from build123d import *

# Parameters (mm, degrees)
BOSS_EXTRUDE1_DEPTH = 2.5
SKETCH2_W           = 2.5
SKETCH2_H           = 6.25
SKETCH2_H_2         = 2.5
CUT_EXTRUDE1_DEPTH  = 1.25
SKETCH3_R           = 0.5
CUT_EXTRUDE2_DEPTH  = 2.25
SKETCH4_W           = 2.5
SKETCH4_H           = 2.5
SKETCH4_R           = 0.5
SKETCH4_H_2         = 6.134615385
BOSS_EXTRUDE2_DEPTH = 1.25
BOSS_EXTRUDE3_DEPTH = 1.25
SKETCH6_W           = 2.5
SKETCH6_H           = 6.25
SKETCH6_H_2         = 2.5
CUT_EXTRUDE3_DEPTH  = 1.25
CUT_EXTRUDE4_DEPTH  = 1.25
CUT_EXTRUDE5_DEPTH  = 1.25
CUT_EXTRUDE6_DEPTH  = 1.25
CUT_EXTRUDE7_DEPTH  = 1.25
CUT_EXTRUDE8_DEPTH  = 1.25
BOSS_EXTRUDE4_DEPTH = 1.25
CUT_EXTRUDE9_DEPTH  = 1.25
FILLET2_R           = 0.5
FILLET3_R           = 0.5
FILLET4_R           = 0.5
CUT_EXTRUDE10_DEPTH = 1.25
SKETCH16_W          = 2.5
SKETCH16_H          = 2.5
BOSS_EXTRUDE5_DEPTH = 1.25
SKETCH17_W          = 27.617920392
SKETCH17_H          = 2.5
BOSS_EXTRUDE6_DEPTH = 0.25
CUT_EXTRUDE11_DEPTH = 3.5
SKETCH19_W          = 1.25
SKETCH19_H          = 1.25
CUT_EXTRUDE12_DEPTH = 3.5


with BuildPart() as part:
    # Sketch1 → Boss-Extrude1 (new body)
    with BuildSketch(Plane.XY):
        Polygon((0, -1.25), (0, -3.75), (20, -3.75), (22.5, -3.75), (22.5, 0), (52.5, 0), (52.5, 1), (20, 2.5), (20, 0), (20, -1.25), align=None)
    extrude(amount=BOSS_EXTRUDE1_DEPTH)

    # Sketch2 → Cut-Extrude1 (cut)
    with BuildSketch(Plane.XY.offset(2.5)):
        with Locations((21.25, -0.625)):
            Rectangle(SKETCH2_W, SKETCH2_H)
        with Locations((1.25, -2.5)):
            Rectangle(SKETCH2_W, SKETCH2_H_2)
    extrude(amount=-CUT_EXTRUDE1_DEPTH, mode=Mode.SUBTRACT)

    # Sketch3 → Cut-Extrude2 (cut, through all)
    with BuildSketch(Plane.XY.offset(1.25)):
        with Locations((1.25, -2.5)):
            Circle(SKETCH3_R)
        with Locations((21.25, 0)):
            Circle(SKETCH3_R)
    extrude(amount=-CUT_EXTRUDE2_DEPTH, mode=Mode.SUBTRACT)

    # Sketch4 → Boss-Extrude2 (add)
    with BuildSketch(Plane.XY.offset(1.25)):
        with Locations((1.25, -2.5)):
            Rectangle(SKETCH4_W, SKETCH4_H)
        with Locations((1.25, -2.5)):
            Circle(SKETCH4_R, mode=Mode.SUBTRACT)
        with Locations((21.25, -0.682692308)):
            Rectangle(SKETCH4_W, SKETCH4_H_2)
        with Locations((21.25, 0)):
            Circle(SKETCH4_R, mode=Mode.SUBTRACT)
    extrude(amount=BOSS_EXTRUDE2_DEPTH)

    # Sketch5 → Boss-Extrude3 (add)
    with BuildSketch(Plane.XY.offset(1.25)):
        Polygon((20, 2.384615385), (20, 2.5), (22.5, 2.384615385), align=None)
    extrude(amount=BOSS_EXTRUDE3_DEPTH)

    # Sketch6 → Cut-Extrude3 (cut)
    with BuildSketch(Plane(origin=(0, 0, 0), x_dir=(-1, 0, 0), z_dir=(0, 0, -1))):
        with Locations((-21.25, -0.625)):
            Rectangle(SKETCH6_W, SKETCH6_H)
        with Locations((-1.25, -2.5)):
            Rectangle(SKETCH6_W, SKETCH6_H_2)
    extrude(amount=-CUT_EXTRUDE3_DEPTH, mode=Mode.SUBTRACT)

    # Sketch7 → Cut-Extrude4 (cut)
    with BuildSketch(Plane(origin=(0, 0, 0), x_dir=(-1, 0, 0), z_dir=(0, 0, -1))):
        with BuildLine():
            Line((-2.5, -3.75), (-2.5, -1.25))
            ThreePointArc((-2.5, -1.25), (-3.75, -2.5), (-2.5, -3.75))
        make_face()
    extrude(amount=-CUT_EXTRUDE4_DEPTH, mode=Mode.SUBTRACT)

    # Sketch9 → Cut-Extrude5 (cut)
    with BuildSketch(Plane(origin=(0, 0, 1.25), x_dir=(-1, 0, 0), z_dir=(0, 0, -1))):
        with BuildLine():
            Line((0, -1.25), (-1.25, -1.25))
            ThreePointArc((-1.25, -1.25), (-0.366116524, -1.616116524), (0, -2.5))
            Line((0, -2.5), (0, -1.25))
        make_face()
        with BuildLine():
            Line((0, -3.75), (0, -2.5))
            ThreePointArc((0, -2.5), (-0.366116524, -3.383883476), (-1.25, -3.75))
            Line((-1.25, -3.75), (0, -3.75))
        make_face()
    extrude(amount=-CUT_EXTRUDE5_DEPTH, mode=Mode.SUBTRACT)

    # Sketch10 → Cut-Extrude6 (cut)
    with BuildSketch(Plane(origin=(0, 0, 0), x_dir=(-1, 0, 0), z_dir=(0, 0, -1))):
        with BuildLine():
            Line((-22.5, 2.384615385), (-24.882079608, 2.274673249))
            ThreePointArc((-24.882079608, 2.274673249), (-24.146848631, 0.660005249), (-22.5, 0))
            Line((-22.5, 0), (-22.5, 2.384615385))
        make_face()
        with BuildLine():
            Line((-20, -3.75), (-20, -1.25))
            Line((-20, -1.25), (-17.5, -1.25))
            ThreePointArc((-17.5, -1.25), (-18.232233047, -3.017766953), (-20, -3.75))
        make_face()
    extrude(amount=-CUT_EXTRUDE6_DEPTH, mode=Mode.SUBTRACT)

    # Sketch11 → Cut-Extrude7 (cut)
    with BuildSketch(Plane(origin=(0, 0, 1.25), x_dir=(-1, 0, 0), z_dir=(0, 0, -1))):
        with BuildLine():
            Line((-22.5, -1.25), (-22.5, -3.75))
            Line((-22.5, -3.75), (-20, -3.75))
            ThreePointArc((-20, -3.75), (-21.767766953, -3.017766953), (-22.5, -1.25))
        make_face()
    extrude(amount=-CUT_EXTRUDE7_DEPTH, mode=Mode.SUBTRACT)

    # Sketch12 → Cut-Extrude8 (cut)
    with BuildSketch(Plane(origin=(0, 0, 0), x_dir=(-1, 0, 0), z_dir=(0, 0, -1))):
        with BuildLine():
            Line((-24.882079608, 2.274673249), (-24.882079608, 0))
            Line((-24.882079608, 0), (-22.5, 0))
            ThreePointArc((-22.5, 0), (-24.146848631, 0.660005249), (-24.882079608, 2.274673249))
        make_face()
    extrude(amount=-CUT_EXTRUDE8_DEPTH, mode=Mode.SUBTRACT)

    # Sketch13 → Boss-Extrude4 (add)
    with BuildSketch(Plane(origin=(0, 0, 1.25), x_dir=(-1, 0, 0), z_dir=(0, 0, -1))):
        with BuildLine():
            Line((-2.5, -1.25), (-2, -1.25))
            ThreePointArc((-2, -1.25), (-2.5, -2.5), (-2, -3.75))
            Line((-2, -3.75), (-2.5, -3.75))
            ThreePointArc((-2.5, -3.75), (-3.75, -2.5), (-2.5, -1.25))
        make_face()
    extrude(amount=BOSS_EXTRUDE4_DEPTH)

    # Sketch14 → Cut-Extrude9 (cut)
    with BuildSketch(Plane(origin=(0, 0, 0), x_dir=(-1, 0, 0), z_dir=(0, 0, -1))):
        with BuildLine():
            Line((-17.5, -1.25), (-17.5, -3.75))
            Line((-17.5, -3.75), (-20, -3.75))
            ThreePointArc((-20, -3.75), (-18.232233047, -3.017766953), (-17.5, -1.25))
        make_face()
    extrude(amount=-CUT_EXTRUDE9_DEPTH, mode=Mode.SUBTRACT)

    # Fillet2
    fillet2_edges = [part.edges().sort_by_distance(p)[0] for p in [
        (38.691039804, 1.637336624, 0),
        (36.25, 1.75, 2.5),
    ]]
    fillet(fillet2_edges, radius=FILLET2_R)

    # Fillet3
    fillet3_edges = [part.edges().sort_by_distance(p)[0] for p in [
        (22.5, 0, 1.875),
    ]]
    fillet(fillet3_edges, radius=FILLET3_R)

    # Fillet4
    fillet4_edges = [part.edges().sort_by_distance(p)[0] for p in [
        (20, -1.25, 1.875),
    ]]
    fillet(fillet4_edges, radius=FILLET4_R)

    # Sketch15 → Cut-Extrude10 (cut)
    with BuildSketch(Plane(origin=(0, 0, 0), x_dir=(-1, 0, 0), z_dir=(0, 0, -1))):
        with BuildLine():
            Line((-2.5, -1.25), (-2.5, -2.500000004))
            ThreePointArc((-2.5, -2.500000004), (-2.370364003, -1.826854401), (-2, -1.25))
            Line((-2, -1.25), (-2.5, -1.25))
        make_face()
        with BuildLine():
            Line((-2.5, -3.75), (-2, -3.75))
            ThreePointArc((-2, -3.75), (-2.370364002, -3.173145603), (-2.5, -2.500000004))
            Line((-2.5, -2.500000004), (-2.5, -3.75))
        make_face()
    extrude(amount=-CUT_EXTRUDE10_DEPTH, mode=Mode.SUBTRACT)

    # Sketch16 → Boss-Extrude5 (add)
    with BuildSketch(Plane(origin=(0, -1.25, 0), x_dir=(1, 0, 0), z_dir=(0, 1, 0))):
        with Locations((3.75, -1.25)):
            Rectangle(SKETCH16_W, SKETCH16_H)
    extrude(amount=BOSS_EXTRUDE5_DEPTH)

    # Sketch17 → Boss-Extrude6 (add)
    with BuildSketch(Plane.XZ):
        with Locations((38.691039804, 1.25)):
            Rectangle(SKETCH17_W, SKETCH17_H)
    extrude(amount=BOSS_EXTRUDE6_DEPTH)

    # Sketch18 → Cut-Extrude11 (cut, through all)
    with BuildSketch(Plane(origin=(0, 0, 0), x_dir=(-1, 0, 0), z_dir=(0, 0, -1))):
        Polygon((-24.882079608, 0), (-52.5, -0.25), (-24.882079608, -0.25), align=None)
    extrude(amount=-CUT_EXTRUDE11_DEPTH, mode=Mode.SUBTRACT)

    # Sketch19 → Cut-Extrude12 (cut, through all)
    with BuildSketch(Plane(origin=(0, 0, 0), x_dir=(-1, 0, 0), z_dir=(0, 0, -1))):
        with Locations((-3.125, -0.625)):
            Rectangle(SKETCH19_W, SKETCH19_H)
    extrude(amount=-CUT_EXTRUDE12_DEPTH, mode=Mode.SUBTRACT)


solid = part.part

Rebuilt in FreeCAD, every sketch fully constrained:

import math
import FreeCAD as App
import Part
import Sketcher
from FreeCAD import Vector


def edges_at(feature, points):
    """Names of the edges that pass closest to the given points."""
    edges = feature.Shape.Edges
    near = lambda p: min(range(len(edges)), key=lambda i: edges[i].distToShape(Part.Vertex(*p))[0])
    return sorted({f"Edge{near(p) + 1}" for p in points})


def add_polygon(sketch, points):
    """Adds a closed chain of lines whose ends are joined by coincident constraints."""
    first, n = sketch.GeometryCount, len(points)
    for a, b in zip(points, points[1:] + points[:1]):
        sketch.addGeometry(Part.LineSegment(App.Vector(*a, 0), App.Vector(*b, 0)), False)
    for i in range(n):
        sketch.addConstraint(Sketcher.Constraint("Coincident", first + i, 2, first + (i + 1) % n, 1))

doc = App.newDocument("Part")
body = doc.addObject("PartDesign::Body", "Body")

sketch1 = body.newObject("Sketcher::SketchObject", "Sketch")
sketch1.AttachmentSupport = (doc.getObject("XY_Plane"), [""])
sketch1.MapMode = "FlatFace"
add_polygon(sketch1, [(0, -1.2), (0, -3.8), (22.5, -3.8), (22.5, 0), (52.5, 0), (52.5, 1), (20, 2.5), (20, -1.2)])
sketch1.addConstraint([
    Sketcher.Constraint("Vertical", 0),
    Sketcher.Constraint("Horizontal", 1),
    Sketcher.Constraint("Vertical", 2),
    Sketcher.Constraint("Horizontal", 3),
    Sketcher.Constraint("Vertical", 4),
    Sketcher.Constraint("Vertical", 6),
    Sketcher.Constraint("Horizontal", 7),
    Sketcher.Constraint("PointOnObject", 0, 2, -2),
    Sketcher.Constraint("PointOnObject", 2, 2, -1),
    Sketcher.Constraint("Equal", 2, 6),
    Sketcher.Constraint("DistanceX", 3, 1, 3, 2, 30.0),
    Sketcher.Constraint("DistanceX", 7, 2, 7, 1, 20.0),
    Sketcher.Constraint("DistanceY", 4, 1, 4, 2, 1.0),
    Sketcher.Constraint("DistanceX", 1, 1, 1, 2, 22.5),
    Sketcher.Constraint("DistanceY", 0, 2, 0, 1, 2.5),
    Sketcher.Constraint("DistanceY", 2, 1, 2, 2, 3.75),
])
pad1 = body.newObject("PartDesign::Pad", "Pad")
pad1.Profile = sketch1
pad1.Length = 2.5

sketch2 = body.newObject("Sketcher::SketchObject", "Sketch001")
sketch2.AttachmentSupport = (doc.getObject("XY_Plane"), [""])
sketch2.MapMode = "FlatFace"
sketch2.AttachmentOffset = App.Placement(Vector(0, 0, 2.5), App.Rotation())
add_polygon(sketch2, [(20, 2.5), (20, -3.8), (22.5, -3.8), (22.5, 2.5)])
add_polygon(sketch2, [(0, -1.2), (0, -3.8), (2.5, -3.8), (2.5, -1.2)])
sketch2.addConstraint([
    Sketcher.Constraint("Vertical", 0),
    Sketcher.Constraint("Horizontal", 1),
    Sketcher.Constraint("Vertical", 2),
    Sketcher.Constraint("Horizontal", 3),
    Sketcher.Constraint("Vertical", 4),
    Sketcher.Constraint("Horizontal", 5),
    Sketcher.Constraint("Vertical", 6),
    Sketcher.Constraint("Horizontal", 7),
    Sketcher.Constraint("PointOnObject", 4, 2, -2),
    Sketcher.Constraint("Horizontal", 1, 2, 4, 2),
    Sketcher.Constraint("Equal", 3, 5),
    Sketcher.Constraint("Equal", 7, 4),
    Sketcher.Constraint("DistanceX", 1, 1, 1, 2, 2.5),
    Sketcher.Constraint("DistanceX", -1, 1, 0, 2, 20.0),
    Sketcher.Constraint("DistanceY", 0, 2, 0, 1, 6.25),
    Sketcher.Constraint("DistanceY", -1, 1, 2, 2, 2.5),
])
pocket1 = body.newObject("PartDesign::Pocket", "Pocket")
pocket1.Profile = sketch2
pocket1.Length = 1.25

sketch3 = body.newObject("Sketcher::SketchObject", "Sketch002")
sketch3.AttachmentSupport = (doc.getObject("XY_Plane"), [""])
sketch3.MapMode = "FlatFace"
sketch3.AttachmentOffset = App.Placement(Vector(0, 0, 1.25), App.Rotation())
sketch3.addGeometry([
    Part.Circle(Vector(1.2, -2.5, 0), Vector(0, 0, 1), 0.5),
    Part.Circle(Vector(21.2, 0, 0), Vector(0, 0, 1), 0.5),
], False)
sketch3.addConstraint([
    Sketcher.Constraint("Equal", 0, 1),
    Sketcher.Constraint("PointOnObject", 1, 3, -1),
    Sketcher.Constraint("Diameter", 0, 1.0),
    Sketcher.Constraint("DistanceX", 0, 3, 1, 3, 20.0),
    Sketcher.Constraint("DistanceY", 0, 3, -1, 1, 2.5),
    Sketcher.Constraint("DistanceX", -1, 1, 0, 3, 1.25),
])
pocket2 = body.newObject("PartDesign::Pocket", "Pocket001")
pocket2.Profile = sketch3
pocket2.Type = "ThroughAll"

sketch4 = body.newObject("Sketcher::SketchObject", "Sketch003")
sketch4.AttachmentSupport = (doc.getObject("XY_Plane"), [""])
sketch4.MapMode = "FlatFace"
sketch4.AttachmentOffset = App.Placement(Vector(0, 0, 1.25), App.Rotation())
add_polygon(sketch4, [(0, -1.2), (0, -3.8), (2.5, -3.8), (2.5, -1.2)])
sketch4.addGeometry(Part.Circle(Vector(1.2, -2.5, 0), Vector(0, 0, 1), 0.5), False)
add_polygon(sketch4, [(20, 2.4), (20, -3.8), (22.5, -3.8), (22.5, 2.4)])
sketch4.addGeometry(Part.Circle(Vector(21.2, 0, 0), Vector(0, 0, 1), 0.5), False)
sketch4.addConstraint([
    Sketcher.Constraint("Vertical", 0),
    Sketcher.Constraint("Horizontal", 1),
    Sketcher.Constraint("Vertical", 2),
    Sketcher.Constraint("Horizontal", 3),
    Sketcher.Constraint("Vertical", 5),
    Sketcher.Constraint("Horizontal", 6),
    Sketcher.Constraint("Vertical", 7),
    Sketcher.Constraint("Horizontal", 8),
    Sketcher.Constraint("Equal", 4, 9),
    Sketcher.Constraint("PointOnObject", 9, 3, -1),
    Sketcher.Constraint("PointOnObject", 0, 2, -2),
    Sketcher.Constraint("Horizontal", 1, 2, 5, 2),
    Sketcher.Constraint("Equal", 3, 6),
    Sketcher.Constraint("Equal", 8, 0),
    Sketcher.Constraint("Diameter", 4, 1.0),
    Sketcher.Constraint("DistanceX", 1, 1, 1, 2, 2.5),
    Sketcher.Constraint("DistanceX", -1, 1, 5, 2, 20.0),
    Sketcher.Constraint("DistanceX", 4, 3, 9, 3, 20.0),
    Sketcher.Constraint("DistanceY", 4, 3, -1, 1, 2.5),
    Sketcher.Constraint("DistanceX", -1, 1, 4, 3, 1.25),
    Sketcher.Constraint("DistanceY", 0, 2, -1, 1, 3.75),
    Sketcher.Constraint("DistanceY", 5, 2, 5, 1, 6.134615),
])
pad2 = body.newObject("PartDesign::Pad", "Pad001")
pad2.Profile = sketch4
pad2.Length = 1.25

sketch5 = body.newObject("Sketcher::SketchObject", "Sketch004")
sketch5.AttachmentSupport = (doc.getObject("XY_Plane"), [""])
sketch5.MapMode = "FlatFace"
sketch5.AttachmentOffset = App.Placement(Vector(0, 0, 1.25), App.Rotation())
add_polygon(sketch5, [(20, 2.5), (20, 2.38), (22.5, 2.38)])
sketch5.addConstraint([
    Sketcher.Constraint("Vertical", 0),
    Sketcher.Constraint("Horizontal", 1),
    Sketcher.Constraint("DistanceX", 1, 1, 1, 2, 2.5),
    Sketcher.Constraint("DistanceX", -1, 1, 0, 2, 20.0),
    Sketcher.Constraint("DistanceY", -1, 1, 2, 2, 2.5),
    Sketcher.Constraint("Distance", 2, 2.502661),
])
pad3 = body.newObject("PartDesign::Pad", "Pad002")
pad3.Profile = sketch5
pad3.Length = 1.25

sketch6 = body.newObject("Sketcher::SketchObject", "Sketch005")
sketch6.AttachmentSupport = (doc.getObject("XY_Plane"), [""])
sketch6.MapMode = "FlatFace"
add_polygon(sketch6, [(22.5, 2.5), (22.5, -3.8), (20, -3.8), (20, 2.5)])
add_polygon(sketch6, [(2.5, -1.2), (2.5, -3.8), (0, -3.8), (0, -1.2)])
sketch6.addConstraint([
    Sketcher.Constraint("Vertical", 0),
    Sketcher.Constraint("Horizontal", 1),
    Sketcher.Constraint("Vertical", 2),
    Sketcher.Constraint("Horizontal", 3),
    Sketcher.Constraint("Vertical", 4),
    Sketcher.Constraint("Horizontal", 5),
    Sketcher.Constraint("Vertical", 6),
    Sketcher.Constraint("Horizontal", 7),
    Sketcher.Constraint("PointOnObject", 5, 2, -2),
    Sketcher.Constraint("Horizontal", 1, 2, 4, 2),
    Sketcher.Constraint("Equal", 3, 5),
    Sketcher.Constraint("Equal", 7, 4),
    Sketcher.Constraint("DistanceX", 1, 2, 1, 1, 2.5),
    Sketcher.Constraint("DistanceX", -1, 1, 1, 2, 20.0),
    Sketcher.Constraint("DistanceY", 0, 2, 0, 1, 6.25),
    Sketcher.Constraint("DistanceY", -1, 1, 2, 2, 2.5),
])
pocket3 = body.newObject("PartDesign::Pocket", "Pocket002")
pocket3.Profile = sketch6
pocket3.Length = 1.25
pocket3.Reversed = True

sketch7 = body.newObject("Sketcher::SketchObject", "Sketch006")
sketch7.AttachmentSupport = (doc.getObject("XY_Plane"), [""])
sketch7.MapMode = "FlatFace"
sketch7.addGeometry([
    Part.LineSegment(Vector(2.5, -3.8, 0), Vector(2.5, -1.2, 0)),
    Part.ArcOfCircle(Part.Circle(Vector(2.5, -2.5, 0), Vector(0, 0, 1), 1.2), math.radians(-90), math.radians(90)),
], False)
sketch7.addConstraint([
    Sketcher.Constraint("Coincident", 0, 1, 1, 1),
    Sketcher.Constraint("Coincident", 1, 2, 0, 2),
    Sketcher.Constraint("Vertical", 0),
    Sketcher.Constraint("Vertical", 1, 3, 0, 1),
    Sketcher.Constraint("Radius", 1, 1.25),
    Sketcher.Constraint("DistanceX", -1, 1, 1, 3, 2.5),
    Sketcher.Constraint("DistanceY", 1, 3, -1, 1, 2.5),
])
pocket4 = body.newObject("PartDesign::Pocket", "Pocket003")
pocket4.Profile = sketch7
pocket4.Length = 1.25
pocket4.Reversed = True

sketch8 = body.newObject("Sketcher::SketchObject", "Sketch007")
sketch8.AttachmentSupport = (doc.getObject("XY_Plane"), [""])
sketch8.MapMode = "FlatFace"
sketch8.AttachmentOffset = App.Placement(Vector(0, 0, 1.25), App.Rotation())
sketch8.addGeometry([
    Part.LineSegment(Vector(0, -1.2, 0), Vector(1.2, -1.2, 0)),
    Part.ArcOfCircle(Part.Circle(Vector(1.3, -2.5, 0), Vector(0, 0, 1), 1.3), math.radians(90), math.radians(180)),
    Part.LineSegment(Vector(0, -2.5, 0), Vector(0, -1.2, 0)),
    Part.LineSegment(Vector(0, -3.8, 0), Vector(0, -2.5, 0)),
    Part.ArcOfCircle(Part.Circle(Vector(1.3, -2.5, 0), Vector(0, 0, 1), 1.3), math.radians(-180), math.radians(-90)),
    Part.LineSegment(Vector(1.2, -3.8, 0), Vector(0, -3.8, 0)),
], False)
sketch8.addConstraint([
    Sketcher.Constraint("Tangent", 0, 2, 1, 1),
    Sketcher.Constraint("Tangent", 1, 2, 2, 1),
    Sketcher.Constraint("Coincident", 2, 2, 0, 1),
    Sketcher.Constraint("Tangent", 3, 2, 4, 1),
    Sketcher.Constraint("Tangent", 4, 2, 5, 1),
    Sketcher.Constraint("Coincident", 5, 2, 3, 1),
    Sketcher.Constraint("Horizontal", 0),
    Sketcher.Constraint("Vertical", 2),
    Sketcher.Constraint("Vertical", 3),
    Sketcher.Constraint("Horizontal", 5),
    Sketcher.Constraint("Coincident", 4, 3, 1, 3),
    Sketcher.Constraint("Equal", 1, 4),
    Sketcher.Constraint("PointOnObject", 1, 2, -2),
    Sketcher.Constraint("Radius", 1, 1.25),
    Sketcher.Constraint("DistanceY", 1, 3, -1, 1, 2.5),
])
pocket5 = body.newObject("PartDesign::Pocket", "Pocket004")
pocket5.Profile = sketch8
pocket5.Length = 1.25
pocket5.Reversed = True

sketch9 = body.newObject("Sketcher::SketchObject", "Sketch008")
sketch9.AttachmentSupport = (doc.getObject("XY_Plane"), [""])
sketch9.MapMode = "FlatFace"
sketch9.addGeometry([
    Part.LineSegment(Vector(22.5, 2.4, 0), Vector(24.9, 2.3, 0)),
    Part.ArcOfCircle(Part.Circle(Vector(22.5, 2.4, 0), Vector(0, 0, 1), 2.4), math.radians(-90), math.radians(-3)),
    Part.LineSegment(Vector(22.5, 0, 0), Vector(22.5, 2.4, 0)),
    Part.LineSegment(Vector(20, -1.2, 0), Vector(20, -3.8, 0)),
    Part.ArcOfCircle(Part.Circle(Vector(20, -1.2, 0), Vector(0, 0, 1), 2.5), math.radians(180), math.radians(270)),
    Part.LineSegment(Vector(17.5, -1.2, 0), Vector(20, -1.2, 0)),
], False)
sketch9.addConstraint([
    Sketcher.Constraint("Coincident", 0, 2, 1, 2),
    Sketcher.Constraint("Coincident", 1, 1, 2, 1),
    Sketcher.Constraint("Coincident", 2, 2, 0, 1),
    Sketcher.Constraint("Coincident", 3, 2, 4, 2),
    Sketcher.Constraint("Coincident", 4, 1, 5, 1),
    Sketcher.Constraint("Coincident", 5, 2, 3, 1),
    Sketcher.Constraint("Vertical", 2),
    Sketcher.Constraint("Vertical", 3),
    Sketcher.Constraint("Horizontal", 5),
    Sketcher.Constraint("Coincident", 2, 2, 1, 3),
    Sketcher.Constraint("Coincident", 5, 2, 4, 3),
    Sketcher.Constraint("PointOnObject", 1, 1, -1),
    Sketcher.Constraint("Radius", 4, 2.5),
    Sketcher.Constraint("DistanceX", -1, 1, 4, 3, 20.0),
    Sketcher.Constraint("DistanceX", 4, 1, 1, 1, 5.0),
    Sketcher.Constraint("DistanceY", 4, 3, -1, 1, 1.25),
    Sketcher.Constraint("Radius", 1, 2.384615),
    Sketcher.Constraint("DistanceX", -1, 1, 0, 2, 24.88208),
])
pocket6 = body.newObject("PartDesign::Pocket", "Pocket005")
pocket6.Profile = sketch9
pocket6.Length = 1.25
pocket6.Reversed = True

sketch10 = body.newObject("Sketcher::SketchObject", "Sketch009")
sketch10.AttachmentSupport = (doc.getObject("XY_Plane"), [""])
sketch10.MapMode = "FlatFace"
sketch10.AttachmentOffset = App.Placement(Vector(0, 0, 1.25), App.Rotation())
sketch10.addGeometry([
    Part.LineSegment(Vector(22.5, -1.2, 0), Vector(22.5, -3.8, 0)),
    Part.LineSegment(Vector(22.5, -3.8, 0), Vector(20, -3.8, 0)),
    Part.ArcOfCircle(Part.Circle(Vector(20, -1.2, 0), Vector(0, 0, 1), 2.5), math.radians(-90), math.radians(0)),
], False)
sketch10.addConstraint([
    Sketcher.Constraint("Coincident", 0, 2, 1, 1),
    Sketcher.Constraint("Tangent", 1, 2, 2, 1),
    Sketcher.Constraint("Tangent", 2, 2, 0, 1),
    Sketcher.Constraint("Vertical", 0),
    Sketcher.Constraint("Horizontal", 1),
    Sketcher.Constraint("Radius", 2, 2.5),
    Sketcher.Constraint("DistanceX", -1, 1, 2, 3, 20.0),
    Sketcher.Constraint("DistanceY", 2, 3, -1, 1, 1.25),
])
pocket7 = body.newObject("PartDesign::Pocket", "Pocket006")
pocket7.Profile = sketch10
pocket7.Length = 1.25
pocket7.Reversed = True

sketch11 = body.newObject("Sketcher::SketchObject", "Sketch010")
sketch11.AttachmentSupport = (doc.getObject("XY_Plane"), [""])
sketch11.MapMode = "FlatFace"
sketch11.addGeometry([
    Part.LineSegment(Vector(24.9, 2.3, 0), Vector(24.9, 0, 0)),
    Part.LineSegment(Vector(24.9, 0, 0), Vector(22.5, 0, 0)),
    Part.ArcOfCircle(Part.Circle(Vector(22.5, 2.4, 0), Vector(0, 0, 1), 2.4), math.radians(-90), math.radians(-3)),
], False)
sketch11.addConstraint([
    Sketcher.Constraint("Coincident", 0, 2, 1, 1),
    Sketcher.Constraint("Tangent", 1, 2, 2, 1),
    Sketcher.Constraint("Coincident", 2, 2, 0, 1),
    Sketcher.Constraint("Vertical", 0),
    Sketcher.Constraint("Horizontal", 1),
    Sketcher.Constraint("PointOnObject", 0, 2, -1),
    Sketcher.Constraint("DistanceX", -1, 1, 2, 3, 22.5),
    Sketcher.Constraint("Radius", 2, 2.384615),
    Sketcher.Constraint("DistanceX", 1, 2, 1, 1, 2.38208),
])
pocket8 = body.newObject("PartDesign::Pocket", "Pocket007")
pocket8.Profile = sketch11
pocket8.Length = 1.25
pocket8.Reversed = True

sketch12 = body.newObject("Sketcher::SketchObject", "Sketch011")
sketch12.AttachmentSupport = (doc.getObject("XY_Plane"), [""])
sketch12.MapMode = "FlatFace"
sketch12.AttachmentOffset = App.Placement(Vector(0, 0, 1.25), App.Rotation())
sketch12.addGeometry([
    Part.LineSegment(Vector(2, -1.2, 0), Vector(2.5, -1.2, 0)),
    Part.ArcOfCircle(Part.Circle(Vector(2.5, -2.5, 0), Vector(0, 0, 1), 1.2), math.radians(-90), math.radians(90)),
    Part.LineSegment(Vector(2.5, -3.8, 0), Vector(2, -3.8, 0)),
    Part.ArcOfCircle(Part.Circle(Vector(0.7, -2.5, 0), Vector(0, 0, 1), 1.8), math.radians(-44), math.radians(44)),
], False)
sketch12.addConstraint([
    Sketcher.Constraint("Tangent", 0, 2, 1, 2),
    Sketcher.Constraint("Tangent", 1, 1, 2, 1),
    Sketcher.Constraint("Coincident", 2, 2, 3, 1),
    Sketcher.Constraint("Coincident", 3, 2, 0, 1),
    Sketcher.Constraint("Horizontal", 0),
    Sketcher.Constraint("Horizontal", 2),
    Sketcher.Constraint("Horizontal", 1, 3, 3, 3),
    Sketcher.Constraint("Radius", 1, 1.25),
    Sketcher.Constraint("DistanceX", 0, 1, 0, 2, 0.5),
    Sketcher.Constraint("DistanceX", -1, 1, 2, 2, 2.0),
    Sketcher.Constraint("DistanceY", 1, 3, -1, 1, 2.5),
    Sketcher.Constraint("Radius", 3, 1.8125),
])
pad4 = body.newObject("PartDesign::Pad", "Pad003")
pad4.Profile = sketch12
pad4.Length = 1.25
pad4.Reversed = True

sketch13 = body.newObject("Sketcher::SketchObject", "Sketch012")
sketch13.AttachmentSupport = (doc.getObject("XY_Plane"), [""])
sketch13.MapMode = "FlatFace"
sketch13.addGeometry([
    Part.LineSegment(Vector(17.5, -3.8, 0), Vector(17.5, -1.2, 0)),
    Part.ArcOfCircle(Part.Circle(Vector(20, -1.2, 0), Vector(0, 0, 1), 2.5), math.radians(180), math.radians(270)),
    Part.LineSegment(Vector(20, -3.8, 0), Vector(17.5, -3.8, 0)),
], False)
sketch13.addConstraint([
    Sketcher.Constraint("Tangent", 0, 2, 1, 1),
    Sketcher.Constraint("Tangent", 1, 2, 2, 1),
    Sketcher.Constraint("Coincident", 2, 2, 0, 1),
    Sketcher.Constraint("Vertical", 0),
    Sketcher.Constraint("Horizontal", 2),
    Sketcher.Constraint("Radius", 1, 2.5),
    Sketcher.Constraint("DistanceX", -1, 1, 1, 3, 20.0),
    Sketcher.Constraint("DistanceY", 1, 3, -1, 1, 1.25),
])
pocket9 = body.newObject("PartDesign::Pocket", "Pocket008")
pocket9.Profile = sketch13
pocket9.Length = 1.25
pocket9.Reversed = True
doc.recompute()

fillet = body.newObject("PartDesign::Fillet", "Fillet")
fillet.Base = (pocket9, edges_at(pocket9, [(38.691, 1.637, 0), (37.5, 1.692, 2.5)]))
fillet.Radius = 0.5
doc.recompute()

fillet2 = body.newObject("PartDesign::Fillet", "Fillet001")
fillet2.Base = (fillet, edges_at(fillet, [(22.5, 0, 1.875)]))
fillet2.Radius = 0.5
doc.recompute()

fillet3 = body.newObject("PartDesign::Fillet", "Fillet002")
fillet3.Base = (fillet2, edges_at(fillet2, [(20, -1.25, 1.875)]))
fillet3.Radius = 0.5

sketch14 = body.newObject("Sketcher::SketchObject", "Sketch013")
sketch14.AttachmentSupport = (doc.getObject("XY_Plane"), [""])
sketch14.MapMode = "FlatFace"
sketch14.addGeometry([
    Part.LineSegment(Vector(2.5, -1.2, 0), Vector(2.5, -2.5, 0)),
    Part.ArcOfCircle(Part.Circle(Vector(0.7, -2.5, 0), Vector(0, 0, 1), 1.8), math.radians(0), math.radians(44)),
    Part.LineSegment(Vector(2, -1.2, 0), Vector(2.5, -1.2, 0)),
    Part.LineSegment(Vector(2.5, -3.8, 0), Vector(2, -3.8, 0)),
    Part.ArcOfCircle(Part.Circle(Vector(0.7, -2.5, 0), Vector(0, 0, 1), 1.8), math.radians(-44), math.radians(0)),
    Part.LineSegment(Vector(2.5, -2.5, 0), Vector(2.5, -3.8, 0)),
], False)
sketch14.addConstraint([
    Sketcher.Constraint("Tangent", 0, 2, 1, 1),
    Sketcher.Constraint("Coincident", 1, 2, 2, 1),
    Sketcher.Constraint("Coincident", 2, 2, 0, 1),
    Sketcher.Constraint("Coincident", 3, 2, 4, 1),
    Sketcher.Constraint("Tangent", 4, 2, 5, 1),
    Sketcher.Constraint("Coincident", 5, 2, 3, 1),
    Sketcher.Constraint("Vertical", 0),
    Sketcher.Constraint("Horizontal", 2),
    Sketcher.Constraint("Horizontal", 3),
    Sketcher.Constraint("Vertical", 5),
    Sketcher.Constraint("Coincident", 4, 3, 1, 3),
    Sketcher.Constraint("Equal", 1, 4),
    Sketcher.Constraint("Vertical", 1, 2, 3, 2),
    Sketcher.Constraint("DistanceX", 2, 1, 2, 2, 0.5),
    Sketcher.Constraint("DistanceX", -1, 1, 1, 2, 2.0),
    Sketcher.Constraint("DistanceY", 0, 2, 0, 1, 1.25),
    Sketcher.Constraint("DistanceY", 1, 3, -1, 1, 2.5),
])
pocket10 = body.newObject("PartDesign::Pocket", "Pocket009")
pocket10.Profile = sketch14
pocket10.Length = 1.25
pocket10.Reversed = True

sketch15 = body.newObject("Sketcher::SketchObject", "Sketch014")
sketch15.AttachmentSupport = (doc.getObject("XZ_Plane"), [""])
sketch15.MapMode = "FlatFace"
sketch15.AttachmentOffset = App.Placement(Vector(0, 0, 1.25), App.Rotation())
add_polygon(sketch15, [(2.5, 0), (2.5, 2.5), (5, 2.5), (5, 0)])
sketch15.addConstraint([
    Sketcher.Constraint("Vertical", 0),
    Sketcher.Constraint("Horizontal", 1),
    Sketcher.Constraint("Vertical", 2),
    Sketcher.Constraint("Horizontal", 3),
    Sketcher.Constraint("PointOnObject", 2, 2, -1),
    Sketcher.Constraint("Equal", 3, 0),
    Sketcher.Constraint("DistanceX", 1, 1, 1, 2, 2.5),
    Sketcher.Constraint("DistanceX", -1, 1, 1, 2, 5.0),
])
pad5 = body.newObject("PartDesign::Pad", "Pad004")
pad5.Profile = sketch15
pad5.Length = 1.25
pad5.Reversed = True

sketch16 = body.newObject("Sketcher::SketchObject", "Sketch015")
sketch16.AttachmentSupport = (doc.getObject("XZ_Plane"), [""])
sketch16.MapMode = "FlatFace"
add_polygon(sketch16, [(24.9, 2.5), (24.9, 0), (52.5, 0), (52.5, 2.5)])
sketch16.addConstraint([
    Sketcher.Constraint("Vertical", 0),
    Sketcher.Constraint("Horizontal", 1),
    Sketcher.Constraint("Vertical", 2),
    Sketcher.Constraint("Horizontal", 3),
    Sketcher.Constraint("PointOnObject", 0, 2, -1),
    Sketcher.Constraint("DistanceY", 0, 2, 0, 1, 2.5),
    Sketcher.Constraint("DistanceX", -1, 1, 1, 2, 52.5),
    Sketcher.Constraint("DistanceX", 1, 1, 1, 2, 27.61792),
])
pad6 = body.newObject("PartDesign::Pad", "Pad005")
pad6.Profile = sketch16
pad6.Length = 0.25

sketch17 = body.newObject("Sketcher::SketchObject", "Sketch016")
sketch17.AttachmentSupport = (doc.getObject("XY_Plane"), [""])
sketch17.MapMode = "FlatFace"
add_polygon(sketch17, [(24.88, 0), (52.5, -0.25), (24.88, -0.25)])
sketch17.addConstraint([
    Sketcher.Constraint("Horizontal", 1),
    Sketcher.Constraint("Vertical", 2),
    Sketcher.Constraint("PointOnObject", 2, 2, -1),
    Sketcher.Constraint("DistanceY", 2, 1, 2, 2, 0.25),
    Sketcher.Constraint("DistanceX", -1, 1, 0, 2, 52.5),
    Sketcher.Constraint("DistanceX", 1, 2, 1, 1, 27.61792),
])
pocket11 = body.newObject("PartDesign::Pocket", "Pocket010")
pocket11.Profile = sketch17
pocket11.Type = "ThroughAll"
pocket11.Reversed = True

sketch18 = body.newObject("Sketcher::SketchObject", "Sketch017")
sketch18.AttachmentSupport = (doc.getObject("XY_Plane"), [""])
sketch18.MapMode = "FlatFace"
add_polygon(sketch18, [(3.8, 0), (3.8, -1.2), (2.5, -1.2), (2.5, 0)])
sketch18.addConstraint([
    Sketcher.Constraint("Vertical", 0),
    Sketcher.Constraint("Horizontal", 1),
    Sketcher.Constraint("Vertical", 2),
    Sketcher.Constraint("Horizontal", 3),
    Sketcher.Constraint("PointOnObject", 2, 2, -1),
    Sketcher.Constraint("Equal", 3, 0),
    Sketcher.Constraint("DistanceX", 1, 2, 1, 1, 1.25),
    Sketcher.Constraint("DistanceX", -1, 1, 1, 2, 2.5),
])
pocket12 = body.newObject("PartDesign::Pocket", "Pocket011")
pocket12.Profile = sketch18
pocket12.Type = "ThroughAll"
pocket12.Reversed = True

doc.recompute()
